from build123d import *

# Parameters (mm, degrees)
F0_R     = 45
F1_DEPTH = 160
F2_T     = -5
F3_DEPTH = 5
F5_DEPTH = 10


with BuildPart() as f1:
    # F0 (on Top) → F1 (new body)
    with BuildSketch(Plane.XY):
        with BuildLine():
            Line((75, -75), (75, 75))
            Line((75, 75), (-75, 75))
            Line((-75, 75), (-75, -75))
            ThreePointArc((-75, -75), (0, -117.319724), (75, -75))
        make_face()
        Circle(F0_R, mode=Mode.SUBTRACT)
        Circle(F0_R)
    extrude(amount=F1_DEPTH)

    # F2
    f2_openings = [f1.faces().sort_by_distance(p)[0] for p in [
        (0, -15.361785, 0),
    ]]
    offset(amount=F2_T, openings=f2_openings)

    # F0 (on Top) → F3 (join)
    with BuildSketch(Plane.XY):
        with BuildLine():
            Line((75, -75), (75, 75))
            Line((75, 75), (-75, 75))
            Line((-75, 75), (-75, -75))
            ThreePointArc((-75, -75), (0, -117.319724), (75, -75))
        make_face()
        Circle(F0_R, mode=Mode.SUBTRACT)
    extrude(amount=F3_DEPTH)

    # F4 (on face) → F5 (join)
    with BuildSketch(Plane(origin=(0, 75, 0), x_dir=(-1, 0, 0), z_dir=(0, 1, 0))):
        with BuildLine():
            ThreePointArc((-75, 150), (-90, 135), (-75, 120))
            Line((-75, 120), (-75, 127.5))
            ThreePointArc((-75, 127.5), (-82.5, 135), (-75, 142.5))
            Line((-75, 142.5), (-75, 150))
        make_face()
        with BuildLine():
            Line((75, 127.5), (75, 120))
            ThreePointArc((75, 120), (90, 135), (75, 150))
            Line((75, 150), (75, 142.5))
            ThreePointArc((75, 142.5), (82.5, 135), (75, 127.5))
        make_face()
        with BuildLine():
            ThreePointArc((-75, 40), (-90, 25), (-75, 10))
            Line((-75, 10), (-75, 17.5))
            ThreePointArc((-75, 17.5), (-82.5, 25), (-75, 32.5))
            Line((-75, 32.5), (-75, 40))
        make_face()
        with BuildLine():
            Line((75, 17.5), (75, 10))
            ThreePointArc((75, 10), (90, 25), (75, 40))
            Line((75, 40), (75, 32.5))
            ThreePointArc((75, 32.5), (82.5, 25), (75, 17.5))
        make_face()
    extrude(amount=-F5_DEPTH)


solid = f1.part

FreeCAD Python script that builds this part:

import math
import FreeCAD as App
import Part
import Sketcher
from FreeCAD import Vector


def faces_at(feature, points):
    """Names of the faces that lie closest to the given points."""
    faces = feature.Shape.Faces
    near = lambda p: min(range(len(faces)), key=lambda i: faces[i].distToShape(Part.Vertex(*p))[0])
    return sorted({f"Face{near(p) + 1}" for p in points})

doc = App.newDocument("Part")
body = doc.addObject("PartDesign::Body", "Body")

sketch1 = body.newObject("Sketcher::SketchObject", "Sketch")
sketch1.AttachmentSupport = (doc.getObject("XY_Plane"), [""])
sketch1.MapMode = "FlatFace"
sketch1.addGeometry([
    Part.LineSegment(Vector(75, -75, 0), Vector(75, 75, 0)),
    Part.LineSegment(Vector(75, 75, 0), Vector(-75, 75, 0)),
    Part.LineSegment(Vector(-75, 75, 0), Vector(-75, -75, 0)),
    Part.ArcOfCircle(Part.Circle(Vector(0, -30, 0), Vector(0, 0, 1), 88), math.radians(-149), math.radians(-31)),
], False)
sketch1.addConstraint([
    Sketcher.Constraint("Coincident", 0, 2, 1, 1),
    Sketcher.Constraint("Coincident", 1, 2, 2, 1),
    Sketcher.Constraint("Coincident", 2, 2, 3, 1),
    Sketcher.Constraint("Coincident", 3, 2, 0, 1),
    Sketcher.Constraint("Vertical", 0),
    Sketcher.Constraint("Horizontal", 1),
    Sketcher.Constraint("Vertical", 2),
    Sketcher.Constraint("Symmetric", 0, 2, 2, 2, -1, 1),
    Sketcher.Constraint("PointOnObject", 3, 3, -2),
    Sketcher.Constraint("Equal", 1, 0),
    Sketcher.Constraint("DistanceX", 1, 2, 1, 1, 150.0),
    Sketcher.Constraint("Radius", 3, 87.618235),
])
pad1 = body.newObject("PartDesign::Pad", "Pad")
pad1.Profile = sketch1
pad1.Length = 160
doc.recompute()

thickness = body.newObject("PartDesign::Thickness", "Thickness")
thickness.Base = (pad1, faces_at(pad1, [(0, -21.16, 0)]))
thickness.Value = 5
thickness.Reversed = True
thickness.Join = "Arc"

sketch2 = body.newObject("Sketcher::SketchObject", "Sketch001")
sketch2.AttachmentSupport = (doc.getObject("XY_Plane"), [""])
sketch2.MapMode = "FlatFace"
sketch2.addGeometry([
    Part.LineSegment(Vector(75, -75, 0), Vector(75, 75, 0)),
    Part.LineSegment(Vector(75, 75, 0), Vector(-75, 75, 0)),
    Part.LineSegment(Vector(-75, 75, 0), Vector(-75, -75, 0)),
    Part.ArcOfCircle(Part.Circle(Vector(0, -30, 0), Vector(0, 0, 1), 88), math.radians(-149), math.radians(-31)),
    Part.Circle(Vector(0, 0, 0), Vector(0, 0, 1), 45),
], False)
sketch2.addConstraint([
    Sketcher.Constraint("Coincident", 0, 2, 1, 1),
    Sketcher.Constraint("Coincident", 1, 2, 2, 1),
    Sketcher.Constraint("Coincident", 2, 2, 3, 1),
    Sketcher.Constraint("Coincident", 3, 2, 0, 1),
    Sketcher.Constraint("Vertical", 0),
    Sketcher.Constraint("Horizontal", 1),
    Sketcher.Constraint("Vertical", 2),
    Sketcher.Constraint("Coincident", 4, 3, -1, 1),
    Sketcher.Constraint("Symmetric", 0, 2, 2, 2, -1, 1),
    Sketcher.Constraint("PointOnObject", 3, 3, -2),
    Sketcher.Constraint("Equal", 1, 0),
    Sketcher.Constraint("Diameter", 4, 90.0),
    Sketcher.Constraint("DistanceX", 1, 2, 1, 1, 150.0),
    Sketcher.Constraint("Radius", 3, 87.618235),
])
pad2 = body.newObject("PartDesign::Pad", "Pad001")
pad2.Profile = sketch2
pad2.Length = 5

sketch3 = body.newObject("Sketcher::SketchObject", "Sketch002")
sketch3.AttachmentSupport = (doc.getObject("XZ_Plane"), [""])
sketch3.MapMode = "FlatFace"
sketch3.AttachmentOffset = App.Placement(Vector(0, 0, -75), App.Rotation())
sketch3.addGeometry([
    Part.ArcOfCircle(Part.Circle(Vector(75, 135, 0), Vector(0, 0, 1), 15), math.radians(-90), math.radians(90)),
    Part.LineSegment(Vector(75, 120, 0), Vector(75, 128, 0)),
    Part.ArcOfCircle(Part.Circle(Vector(75, 135, 0), Vector(0, 0, 1), 8), math.radians(-90), math.radians(90)),
    Part.LineSegment(Vector(75, 142, 0), Vector(75, 150, 0)),
    Part.LineSegment(Vector(-75, 128, 0), Vector(-75, 120, 0)),
    Part.ArcOfCircle(Part.Circle(Vector(-75, 135, 0), Vector(0, 0, 1), 15), math.radians(90), math.radians(270)),
    Part.LineSegment(Vector(-75, 150, 0), Vector(-75, 142, 0)),
    Part.ArcOfCircle(Part.Circle(Vector(-75, 135, 0), Vector(0, 0, 1), 8), math.radians(90), math.radians(270)),
    Part.ArcOfCircle(Part.Circle(Vector(75, 25, 0), Vector(0, 0, 1), 15), math.radians(-90), math.radians(90)),
    Part.LineSegment(Vector(75, 10, 0), Vector(75, 18, 0)),
    Part.ArcOfCircle(Part.Circle(Vector(75, 25, 0), Vector(0, 0, 1), 8), math.radians(-90), math.radians(90)),
    Part.LineSegment(Vector(75, 32, 0), Vector(75, 40, 0)),
    Part.LineSegment(Vector(-75, 18, 0), Vector(-75, 10, 0)),
    Part.ArcOfCircle(Part.Circle(Vector(-75, 25, 0), Vector(0, 0, 1), 15), math.radians(90), math.radians(270)),
    Part.LineSegment(Vector(-75, 40, 0), Vector(-75, 32, 0)),
    Part.ArcOfCircle(Part.Circle(Vector(-75, 25, 0), Vector(0, 0, 1), 8), math.radians(90), math.radians(270)),
], False)
sketch3.addConstraint([
    Sketcher.Constraint("Coincident", 0, 1, 1, 1),
    Sketcher.Constraint("Coincident", 1, 2, 2, 1),
    Sketcher.Constraint("Coincident", 2, 2, 3, 1),
    Sketcher.Constraint("Coincident", 3, 2, 0, 2),
    Sketcher.Constraint("Coincident", 4, 2, 5, 2),
    Sketcher.Constraint("Coincident", 5, 1, 6, 1),
    Sketcher.Constraint("Coincident", 6, 2, 7, 1),
    Sketcher.Constraint("Coincident", 7, 2, 4, 1),
    Sketcher.Constraint("Coincident", 8, 1, 9, 1),
    Sketcher.Constraint("Coincident", 9, 2, 10, 1),
    Sketcher.Constraint("Coincident", 10, 2, 11, 1),
    Sketcher.Constraint("Coincident", 11, 2, 8, 2),
    Sketcher.Constraint("Coincident", 12, 2, 13, 2),
    Sketcher.Constraint("Coincident", 13, 1, 14, 1),
    Sketcher.Constraint("Coincident", 14, 2, 15, 1),
    Sketcher.Constraint("Coincident", 15, 2, 12, 1),
    Sketcher.Constraint("Vertical", 1),
    Sketcher.Constraint("Vertical", 3),
    Sketcher.Constraint("Vertical", 4),
    Sketcher.Constraint("Vertical", 6),
    Sketcher.Constraint("Vertical", 9),
    Sketcher.Constraint("Vertical", 11),
    Sketcher.Constraint("Vertical", 12),
    Sketcher.Constraint("Vertical", 14),
    Sketcher.Constraint("Coincident", 2, 3, 0, 3),
    Sketcher.Constraint("Coincident", 7, 3, 5, 3),
    Sketcher.Constraint("Coincident", 10, 3, 8, 3),
    Sketcher.Constraint("Coincident", 15, 3, 13, 3),
    Sketcher.Constraint("Equal", 0, 5),
    Sketcher.Constraint("Equal", 2, 7),
    Sketcher.Constraint("Equal", 5, 8),
    Sketcher.Constraint("Equal", 7, 10),
    Sketcher.Constraint("Equal", 8, 13),
    Sketcher.Constraint("Equal", 10, 15),
    Sketcher.Constraint("Symmetric", 0, 3, 5, 3, -2),
    Sketcher.Constraint("Symmetric", 8, 3, 13, 3, -2),
    Sketcher.Constraint("Vertical", 2, 3, 8, 3),
    Sketcher.Constraint("Vertical", 10, 3, 0, 1),
    Sketcher.Constraint("Vertical", 1, 2, 2, 2),
    Sketcher.Constraint("Vertical", 15, 3, 4, 2),
    Sketcher.Constraint("Vertical", 4, 2, 5, 1),
    Sketcher.Constraint("Vertical", 3, 2, 8, 1),
    Sketcher.Constraint("Vertical", 9, 2, 10, 2),
    Sketcher.Constraint("Vertical", 7, 2, 12, 2),
    Sketcher.Constraint("Vertical", 12, 2, 13, 1),
    Sketcher.Constraint("Radius", 0, 15.0),
    Sketcher.Constraint("Radius", 2, 7.5),
    Sketcher.Constraint("DistanceX", -1, 1, 0, 3, 75.0),
    Sketcher.Constraint("DistanceY", -1, 1, 0, 3, 135.0),
    Sketcher.Constraint("DistanceY", -1, 1, 8, 3, 25.0),
])
pad3 = body.newObject("PartDesign::Pad", "Pad002")
pad3.Profile = sketch3
pad3.Length = 10

doc.recompute()
